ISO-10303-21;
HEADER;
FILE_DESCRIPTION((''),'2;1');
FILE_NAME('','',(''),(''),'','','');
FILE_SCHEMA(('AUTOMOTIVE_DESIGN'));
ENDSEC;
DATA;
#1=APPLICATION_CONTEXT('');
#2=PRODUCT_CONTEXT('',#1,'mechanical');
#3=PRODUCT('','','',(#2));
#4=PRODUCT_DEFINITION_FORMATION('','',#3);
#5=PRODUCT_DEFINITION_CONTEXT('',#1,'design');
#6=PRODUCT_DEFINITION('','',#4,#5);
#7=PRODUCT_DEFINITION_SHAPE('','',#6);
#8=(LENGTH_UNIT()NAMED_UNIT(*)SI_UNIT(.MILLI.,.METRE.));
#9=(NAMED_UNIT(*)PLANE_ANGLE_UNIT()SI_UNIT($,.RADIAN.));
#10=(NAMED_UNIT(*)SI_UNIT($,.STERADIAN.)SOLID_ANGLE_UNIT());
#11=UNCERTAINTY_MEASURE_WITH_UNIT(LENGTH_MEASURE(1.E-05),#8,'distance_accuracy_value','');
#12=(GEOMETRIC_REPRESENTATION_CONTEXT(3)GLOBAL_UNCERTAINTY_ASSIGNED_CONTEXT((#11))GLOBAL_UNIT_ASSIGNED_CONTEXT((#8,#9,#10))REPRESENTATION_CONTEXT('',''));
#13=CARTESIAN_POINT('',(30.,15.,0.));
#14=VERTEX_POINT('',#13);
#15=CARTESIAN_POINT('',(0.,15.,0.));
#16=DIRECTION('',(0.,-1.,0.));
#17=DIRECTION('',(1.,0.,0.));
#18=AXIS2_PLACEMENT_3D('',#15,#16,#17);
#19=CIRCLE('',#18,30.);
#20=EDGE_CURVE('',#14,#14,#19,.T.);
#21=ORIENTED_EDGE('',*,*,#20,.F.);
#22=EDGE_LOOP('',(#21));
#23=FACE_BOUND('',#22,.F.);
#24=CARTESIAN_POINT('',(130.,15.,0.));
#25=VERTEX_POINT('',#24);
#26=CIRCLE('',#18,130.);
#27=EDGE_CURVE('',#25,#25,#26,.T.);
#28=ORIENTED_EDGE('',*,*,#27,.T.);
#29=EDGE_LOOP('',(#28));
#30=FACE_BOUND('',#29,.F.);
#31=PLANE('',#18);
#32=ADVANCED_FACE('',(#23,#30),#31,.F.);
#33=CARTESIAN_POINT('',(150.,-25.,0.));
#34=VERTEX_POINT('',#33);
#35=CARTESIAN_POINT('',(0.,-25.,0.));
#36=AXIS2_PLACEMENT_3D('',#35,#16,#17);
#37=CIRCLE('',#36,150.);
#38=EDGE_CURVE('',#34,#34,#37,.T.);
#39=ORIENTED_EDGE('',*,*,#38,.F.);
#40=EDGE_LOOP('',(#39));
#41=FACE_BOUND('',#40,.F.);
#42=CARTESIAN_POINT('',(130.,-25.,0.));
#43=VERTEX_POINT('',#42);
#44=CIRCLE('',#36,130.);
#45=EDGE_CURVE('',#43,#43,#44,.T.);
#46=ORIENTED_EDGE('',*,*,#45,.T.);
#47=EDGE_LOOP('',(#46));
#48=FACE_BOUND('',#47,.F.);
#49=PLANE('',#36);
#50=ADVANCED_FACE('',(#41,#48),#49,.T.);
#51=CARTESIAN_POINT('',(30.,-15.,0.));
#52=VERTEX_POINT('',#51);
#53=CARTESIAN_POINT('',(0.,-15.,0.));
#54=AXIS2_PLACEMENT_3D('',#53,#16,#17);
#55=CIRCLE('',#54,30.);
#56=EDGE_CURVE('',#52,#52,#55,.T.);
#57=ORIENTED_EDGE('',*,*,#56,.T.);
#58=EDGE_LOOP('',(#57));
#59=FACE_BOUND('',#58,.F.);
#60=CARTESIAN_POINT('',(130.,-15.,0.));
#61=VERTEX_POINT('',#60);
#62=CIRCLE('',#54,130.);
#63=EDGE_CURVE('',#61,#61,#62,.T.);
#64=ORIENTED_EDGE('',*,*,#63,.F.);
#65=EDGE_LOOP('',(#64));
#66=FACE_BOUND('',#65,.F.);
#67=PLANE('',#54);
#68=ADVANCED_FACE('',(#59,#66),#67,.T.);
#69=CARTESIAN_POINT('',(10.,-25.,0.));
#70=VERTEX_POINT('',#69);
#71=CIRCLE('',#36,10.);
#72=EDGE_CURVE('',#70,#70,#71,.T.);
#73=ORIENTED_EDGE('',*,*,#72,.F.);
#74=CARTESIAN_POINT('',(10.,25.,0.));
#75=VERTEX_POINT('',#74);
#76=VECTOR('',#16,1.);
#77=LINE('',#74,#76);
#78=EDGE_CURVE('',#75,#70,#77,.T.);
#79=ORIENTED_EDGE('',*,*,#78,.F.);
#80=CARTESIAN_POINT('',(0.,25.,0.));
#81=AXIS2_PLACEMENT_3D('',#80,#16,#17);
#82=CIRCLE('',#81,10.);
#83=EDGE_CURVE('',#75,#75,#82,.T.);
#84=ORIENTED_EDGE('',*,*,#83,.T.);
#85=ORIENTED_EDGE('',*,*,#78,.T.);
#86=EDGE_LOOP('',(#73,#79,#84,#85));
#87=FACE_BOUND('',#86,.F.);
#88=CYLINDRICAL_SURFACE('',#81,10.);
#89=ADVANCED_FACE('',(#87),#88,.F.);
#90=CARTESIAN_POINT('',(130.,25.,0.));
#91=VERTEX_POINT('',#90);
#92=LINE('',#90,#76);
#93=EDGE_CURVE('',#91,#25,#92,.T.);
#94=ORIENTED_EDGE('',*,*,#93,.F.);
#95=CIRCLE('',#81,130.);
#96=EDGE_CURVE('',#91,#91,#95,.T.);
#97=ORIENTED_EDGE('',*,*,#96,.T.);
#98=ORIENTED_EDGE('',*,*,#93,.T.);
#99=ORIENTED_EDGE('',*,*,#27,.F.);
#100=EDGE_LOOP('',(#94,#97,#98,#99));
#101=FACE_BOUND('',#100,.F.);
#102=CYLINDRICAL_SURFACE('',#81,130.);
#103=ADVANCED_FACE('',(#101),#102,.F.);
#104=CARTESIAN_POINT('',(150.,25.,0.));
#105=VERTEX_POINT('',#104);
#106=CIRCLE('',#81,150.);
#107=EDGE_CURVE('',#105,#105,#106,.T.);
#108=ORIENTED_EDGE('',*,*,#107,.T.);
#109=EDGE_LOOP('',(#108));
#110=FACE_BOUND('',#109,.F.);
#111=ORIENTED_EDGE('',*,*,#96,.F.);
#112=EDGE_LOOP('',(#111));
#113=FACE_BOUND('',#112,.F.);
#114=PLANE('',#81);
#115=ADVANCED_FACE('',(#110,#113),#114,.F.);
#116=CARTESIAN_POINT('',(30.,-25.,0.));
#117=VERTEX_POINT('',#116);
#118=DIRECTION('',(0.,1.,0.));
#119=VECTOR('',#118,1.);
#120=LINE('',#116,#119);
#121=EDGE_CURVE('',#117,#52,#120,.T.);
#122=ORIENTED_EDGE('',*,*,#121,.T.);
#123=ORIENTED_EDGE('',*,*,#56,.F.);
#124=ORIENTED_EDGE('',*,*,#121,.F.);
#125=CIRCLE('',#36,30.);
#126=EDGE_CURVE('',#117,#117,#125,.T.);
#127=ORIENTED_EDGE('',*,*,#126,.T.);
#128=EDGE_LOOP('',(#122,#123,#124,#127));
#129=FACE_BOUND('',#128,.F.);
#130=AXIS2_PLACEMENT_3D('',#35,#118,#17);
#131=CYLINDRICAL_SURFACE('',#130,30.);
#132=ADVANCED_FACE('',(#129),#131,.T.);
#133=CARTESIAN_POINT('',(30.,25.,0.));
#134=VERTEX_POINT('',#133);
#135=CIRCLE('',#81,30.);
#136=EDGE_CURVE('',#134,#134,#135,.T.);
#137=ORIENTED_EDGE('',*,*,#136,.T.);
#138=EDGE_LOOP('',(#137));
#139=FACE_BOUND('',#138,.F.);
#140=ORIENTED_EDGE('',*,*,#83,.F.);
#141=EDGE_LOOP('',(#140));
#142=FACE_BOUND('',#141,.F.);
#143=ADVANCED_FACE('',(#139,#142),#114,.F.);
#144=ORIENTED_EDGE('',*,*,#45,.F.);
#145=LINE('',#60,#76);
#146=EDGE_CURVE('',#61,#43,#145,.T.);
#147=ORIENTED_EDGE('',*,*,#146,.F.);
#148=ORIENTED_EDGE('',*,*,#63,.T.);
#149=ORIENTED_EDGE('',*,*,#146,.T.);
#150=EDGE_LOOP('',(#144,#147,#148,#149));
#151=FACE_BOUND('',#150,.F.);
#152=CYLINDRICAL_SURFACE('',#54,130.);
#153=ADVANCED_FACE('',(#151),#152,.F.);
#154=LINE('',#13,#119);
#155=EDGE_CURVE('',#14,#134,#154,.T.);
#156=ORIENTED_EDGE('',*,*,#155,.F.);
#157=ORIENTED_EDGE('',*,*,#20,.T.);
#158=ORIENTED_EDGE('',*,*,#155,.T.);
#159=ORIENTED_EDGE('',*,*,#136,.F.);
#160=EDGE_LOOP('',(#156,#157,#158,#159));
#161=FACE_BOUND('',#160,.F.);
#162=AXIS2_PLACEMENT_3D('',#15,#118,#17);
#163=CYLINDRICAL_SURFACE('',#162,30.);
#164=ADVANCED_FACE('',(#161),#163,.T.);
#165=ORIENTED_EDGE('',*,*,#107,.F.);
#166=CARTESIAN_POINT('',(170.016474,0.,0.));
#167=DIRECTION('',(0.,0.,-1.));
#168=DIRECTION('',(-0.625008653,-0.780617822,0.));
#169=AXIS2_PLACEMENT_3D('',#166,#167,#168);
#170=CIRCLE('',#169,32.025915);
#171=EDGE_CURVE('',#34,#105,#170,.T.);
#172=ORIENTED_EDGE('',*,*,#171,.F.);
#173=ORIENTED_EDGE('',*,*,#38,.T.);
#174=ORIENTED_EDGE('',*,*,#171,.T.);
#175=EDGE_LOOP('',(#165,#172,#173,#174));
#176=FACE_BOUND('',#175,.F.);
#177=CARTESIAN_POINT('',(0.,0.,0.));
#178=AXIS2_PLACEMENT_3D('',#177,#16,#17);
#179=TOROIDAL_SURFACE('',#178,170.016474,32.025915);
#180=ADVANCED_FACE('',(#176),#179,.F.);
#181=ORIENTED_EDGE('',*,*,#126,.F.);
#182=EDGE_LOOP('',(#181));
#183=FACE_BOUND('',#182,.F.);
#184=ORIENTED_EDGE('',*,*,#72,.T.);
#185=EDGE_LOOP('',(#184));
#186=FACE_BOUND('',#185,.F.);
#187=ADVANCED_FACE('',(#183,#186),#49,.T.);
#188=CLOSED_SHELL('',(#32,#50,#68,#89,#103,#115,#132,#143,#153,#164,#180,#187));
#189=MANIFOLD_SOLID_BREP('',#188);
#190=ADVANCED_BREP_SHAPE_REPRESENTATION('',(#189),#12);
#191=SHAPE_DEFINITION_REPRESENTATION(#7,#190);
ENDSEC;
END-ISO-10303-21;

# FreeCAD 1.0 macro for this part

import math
import FreeCAD as App
import Part
import Sketcher

V = App.Vector
Q = App.Units.Quantity

doc = App.newDocument("Part")
params = doc.addObject("Spreadsheet::Sheet", "Params")
for row, (alias, value) in enumerate([
    ("sketch1_width", "20 mm"),
    ("sketch1_width2", "100 mm"),
    ("sketch1_height", "50 mm"),
    ("sketch1_height2", "10 mm"),
    ("revolution_angle", "360 deg"),
], start=1):
    params.set(f"A{row}", alias)
    params.set(f"B{row}", "=" + value)
    params.setAlias(f"B{row}", alias)

body = doc.addObject("PartDesign::Body", "Body")

# Sketch on XY plane
sketch1 = body.newObject("Sketcher::SketchObject", "Sketch")
sketch1.AttachmentSupport = (doc.getObject("XY_Plane"), [""])
sketch1.MapMode = "FlatFace"
sketch1.addGeometry([
    Part.LineSegment(V(30, 25, 0), V(10, 25, 0)),  # 0
    Part.LineSegment(V(10, 25, 0), V(10, -25, 0)),  # 1
    Part.LineSegment(V(10, -25, 0), V(30, -25, 0)),  # 2
    Part.LineSegment(V(30, -25, 0), V(30, -15, 0)),  # 3
    Part.LineSegment(V(30, -15, 0), V(130, -15, 0)),  # 4
    Part.LineSegment(V(130, -15, 0), V(130, -25, 0)),  # 5
    Part.LineSegment(V(130, -25, 0), V(150, -25, 0)),  # 6
    Part.ArcOfCircle(Part.Circle(V(170, 0, 0), V(0, 0, 1), 32), math.radians(129), math.radians(231)),  # 7
    Part.LineSegment(V(150, 25, 0), V(130, 25, 0)),  # 8
    Part.LineSegment(V(130, 25, 0), V(130, 15, 0)),  # 9
    Part.LineSegment(V(130, 15, 0), V(30, 15, 0)),  # 10
    Part.LineSegment(V(30, 15, 0), V(30, 25, 0)),  # 11
], False)
sketch1.addConstraint([
    Sketcher.Constraint("Coincident", 0, 2, 1, 1),
    Sketcher.Constraint("Coincident", 1, 2, 2, 1),
    Sketcher.Constraint("Coincident", 2, 2, 3, 1),
    Sketcher.Constraint("Coincident", 3, 2, 4, 1),
    Sketcher.Constraint("Coincident", 4, 2, 5, 1),
    Sketcher.Constraint("Coincident", 5, 2, 6, 1),
    Sketcher.Constraint("Coincident", 6, 2, 7, 2),
    Sketcher.Constraint("Coincident", 7, 1, 8, 1),
    Sketcher.Constraint("Coincident", 8, 2, 9, 1),
    Sketcher.Constraint("Coincident", 9, 2, 10, 1),
    Sketcher.Constraint("Coincident", 10, 2, 11, 1),
    Sketcher.Constraint("Coincident", 11, 2, 0, 1),
    Sketcher.Constraint("Horizontal", 0),
    Sketcher.Constraint("Vertical", 1),
    Sketcher.Constraint("Horizontal", 2),
    Sketcher.Constraint("Vertical", 3),
    Sketcher.Constraint("Horizontal", 4),
    Sketcher.Constraint("Vertical", 5),
    Sketcher.Constraint("Horizontal", 6),
    Sketcher.Constraint("Horizontal", 8),
    Sketcher.Constraint("Vertical", 9),
    Sketcher.Constraint("Horizontal", 10),
    Sketcher.Constraint("Vertical", 11),
    Sketcher.Constraint("Symmetric", 6, 2, 7, 1, -1),
    Sketcher.Constraint("Symmetric", 4, 2, 9, 2, -1),
    Sketcher.Constraint("Symmetric", 2, 2, 11, 2, -1),
    Sketcher.Constraint("Horizontal", 2, 2, 5, 2),
    Sketcher.Constraint("Equal", 2, 6),
    Sketcher.Constraint("DistanceX", 0, 2, 0, 1, Q("20 mm")),
    Sketcher.Constraint("DistanceX", 4, 1, 4, 2, Q("100 mm")),
    Sketcher.Constraint("DistanceY", 1, 2, 1, 1, Q("50 mm")),
    Sketcher.Constraint("DistanceY", 3, 1, 3, 2, Q("10 mm")),
    Sketcher.Constraint("DistanceX", -1, 1, 0, 2, Q("10 mm")),
    Sketcher.Constraint("Radius", 7, Q("32.025915 mm")),
])
sketch1.setExpression("Constraints[28]", "Params.sketch1_width")
sketch1.setExpression("Constraints[29]", "Params.sketch1_width2")
sketch1.setExpression("Constraints[30]", "Params.sketch1_height")
sketch1.setExpression("Constraints[31]", "Params.sketch1_height2")
revolution = body.newObject("PartDesign::Revolution", "Revolution")
revolution.Profile = sketch1
revolution.ReferenceAxis = (sketch1, ["V_Axis"])
revolution.setExpression("Angle", "Params.revolution_angle")

doc.recompute()
